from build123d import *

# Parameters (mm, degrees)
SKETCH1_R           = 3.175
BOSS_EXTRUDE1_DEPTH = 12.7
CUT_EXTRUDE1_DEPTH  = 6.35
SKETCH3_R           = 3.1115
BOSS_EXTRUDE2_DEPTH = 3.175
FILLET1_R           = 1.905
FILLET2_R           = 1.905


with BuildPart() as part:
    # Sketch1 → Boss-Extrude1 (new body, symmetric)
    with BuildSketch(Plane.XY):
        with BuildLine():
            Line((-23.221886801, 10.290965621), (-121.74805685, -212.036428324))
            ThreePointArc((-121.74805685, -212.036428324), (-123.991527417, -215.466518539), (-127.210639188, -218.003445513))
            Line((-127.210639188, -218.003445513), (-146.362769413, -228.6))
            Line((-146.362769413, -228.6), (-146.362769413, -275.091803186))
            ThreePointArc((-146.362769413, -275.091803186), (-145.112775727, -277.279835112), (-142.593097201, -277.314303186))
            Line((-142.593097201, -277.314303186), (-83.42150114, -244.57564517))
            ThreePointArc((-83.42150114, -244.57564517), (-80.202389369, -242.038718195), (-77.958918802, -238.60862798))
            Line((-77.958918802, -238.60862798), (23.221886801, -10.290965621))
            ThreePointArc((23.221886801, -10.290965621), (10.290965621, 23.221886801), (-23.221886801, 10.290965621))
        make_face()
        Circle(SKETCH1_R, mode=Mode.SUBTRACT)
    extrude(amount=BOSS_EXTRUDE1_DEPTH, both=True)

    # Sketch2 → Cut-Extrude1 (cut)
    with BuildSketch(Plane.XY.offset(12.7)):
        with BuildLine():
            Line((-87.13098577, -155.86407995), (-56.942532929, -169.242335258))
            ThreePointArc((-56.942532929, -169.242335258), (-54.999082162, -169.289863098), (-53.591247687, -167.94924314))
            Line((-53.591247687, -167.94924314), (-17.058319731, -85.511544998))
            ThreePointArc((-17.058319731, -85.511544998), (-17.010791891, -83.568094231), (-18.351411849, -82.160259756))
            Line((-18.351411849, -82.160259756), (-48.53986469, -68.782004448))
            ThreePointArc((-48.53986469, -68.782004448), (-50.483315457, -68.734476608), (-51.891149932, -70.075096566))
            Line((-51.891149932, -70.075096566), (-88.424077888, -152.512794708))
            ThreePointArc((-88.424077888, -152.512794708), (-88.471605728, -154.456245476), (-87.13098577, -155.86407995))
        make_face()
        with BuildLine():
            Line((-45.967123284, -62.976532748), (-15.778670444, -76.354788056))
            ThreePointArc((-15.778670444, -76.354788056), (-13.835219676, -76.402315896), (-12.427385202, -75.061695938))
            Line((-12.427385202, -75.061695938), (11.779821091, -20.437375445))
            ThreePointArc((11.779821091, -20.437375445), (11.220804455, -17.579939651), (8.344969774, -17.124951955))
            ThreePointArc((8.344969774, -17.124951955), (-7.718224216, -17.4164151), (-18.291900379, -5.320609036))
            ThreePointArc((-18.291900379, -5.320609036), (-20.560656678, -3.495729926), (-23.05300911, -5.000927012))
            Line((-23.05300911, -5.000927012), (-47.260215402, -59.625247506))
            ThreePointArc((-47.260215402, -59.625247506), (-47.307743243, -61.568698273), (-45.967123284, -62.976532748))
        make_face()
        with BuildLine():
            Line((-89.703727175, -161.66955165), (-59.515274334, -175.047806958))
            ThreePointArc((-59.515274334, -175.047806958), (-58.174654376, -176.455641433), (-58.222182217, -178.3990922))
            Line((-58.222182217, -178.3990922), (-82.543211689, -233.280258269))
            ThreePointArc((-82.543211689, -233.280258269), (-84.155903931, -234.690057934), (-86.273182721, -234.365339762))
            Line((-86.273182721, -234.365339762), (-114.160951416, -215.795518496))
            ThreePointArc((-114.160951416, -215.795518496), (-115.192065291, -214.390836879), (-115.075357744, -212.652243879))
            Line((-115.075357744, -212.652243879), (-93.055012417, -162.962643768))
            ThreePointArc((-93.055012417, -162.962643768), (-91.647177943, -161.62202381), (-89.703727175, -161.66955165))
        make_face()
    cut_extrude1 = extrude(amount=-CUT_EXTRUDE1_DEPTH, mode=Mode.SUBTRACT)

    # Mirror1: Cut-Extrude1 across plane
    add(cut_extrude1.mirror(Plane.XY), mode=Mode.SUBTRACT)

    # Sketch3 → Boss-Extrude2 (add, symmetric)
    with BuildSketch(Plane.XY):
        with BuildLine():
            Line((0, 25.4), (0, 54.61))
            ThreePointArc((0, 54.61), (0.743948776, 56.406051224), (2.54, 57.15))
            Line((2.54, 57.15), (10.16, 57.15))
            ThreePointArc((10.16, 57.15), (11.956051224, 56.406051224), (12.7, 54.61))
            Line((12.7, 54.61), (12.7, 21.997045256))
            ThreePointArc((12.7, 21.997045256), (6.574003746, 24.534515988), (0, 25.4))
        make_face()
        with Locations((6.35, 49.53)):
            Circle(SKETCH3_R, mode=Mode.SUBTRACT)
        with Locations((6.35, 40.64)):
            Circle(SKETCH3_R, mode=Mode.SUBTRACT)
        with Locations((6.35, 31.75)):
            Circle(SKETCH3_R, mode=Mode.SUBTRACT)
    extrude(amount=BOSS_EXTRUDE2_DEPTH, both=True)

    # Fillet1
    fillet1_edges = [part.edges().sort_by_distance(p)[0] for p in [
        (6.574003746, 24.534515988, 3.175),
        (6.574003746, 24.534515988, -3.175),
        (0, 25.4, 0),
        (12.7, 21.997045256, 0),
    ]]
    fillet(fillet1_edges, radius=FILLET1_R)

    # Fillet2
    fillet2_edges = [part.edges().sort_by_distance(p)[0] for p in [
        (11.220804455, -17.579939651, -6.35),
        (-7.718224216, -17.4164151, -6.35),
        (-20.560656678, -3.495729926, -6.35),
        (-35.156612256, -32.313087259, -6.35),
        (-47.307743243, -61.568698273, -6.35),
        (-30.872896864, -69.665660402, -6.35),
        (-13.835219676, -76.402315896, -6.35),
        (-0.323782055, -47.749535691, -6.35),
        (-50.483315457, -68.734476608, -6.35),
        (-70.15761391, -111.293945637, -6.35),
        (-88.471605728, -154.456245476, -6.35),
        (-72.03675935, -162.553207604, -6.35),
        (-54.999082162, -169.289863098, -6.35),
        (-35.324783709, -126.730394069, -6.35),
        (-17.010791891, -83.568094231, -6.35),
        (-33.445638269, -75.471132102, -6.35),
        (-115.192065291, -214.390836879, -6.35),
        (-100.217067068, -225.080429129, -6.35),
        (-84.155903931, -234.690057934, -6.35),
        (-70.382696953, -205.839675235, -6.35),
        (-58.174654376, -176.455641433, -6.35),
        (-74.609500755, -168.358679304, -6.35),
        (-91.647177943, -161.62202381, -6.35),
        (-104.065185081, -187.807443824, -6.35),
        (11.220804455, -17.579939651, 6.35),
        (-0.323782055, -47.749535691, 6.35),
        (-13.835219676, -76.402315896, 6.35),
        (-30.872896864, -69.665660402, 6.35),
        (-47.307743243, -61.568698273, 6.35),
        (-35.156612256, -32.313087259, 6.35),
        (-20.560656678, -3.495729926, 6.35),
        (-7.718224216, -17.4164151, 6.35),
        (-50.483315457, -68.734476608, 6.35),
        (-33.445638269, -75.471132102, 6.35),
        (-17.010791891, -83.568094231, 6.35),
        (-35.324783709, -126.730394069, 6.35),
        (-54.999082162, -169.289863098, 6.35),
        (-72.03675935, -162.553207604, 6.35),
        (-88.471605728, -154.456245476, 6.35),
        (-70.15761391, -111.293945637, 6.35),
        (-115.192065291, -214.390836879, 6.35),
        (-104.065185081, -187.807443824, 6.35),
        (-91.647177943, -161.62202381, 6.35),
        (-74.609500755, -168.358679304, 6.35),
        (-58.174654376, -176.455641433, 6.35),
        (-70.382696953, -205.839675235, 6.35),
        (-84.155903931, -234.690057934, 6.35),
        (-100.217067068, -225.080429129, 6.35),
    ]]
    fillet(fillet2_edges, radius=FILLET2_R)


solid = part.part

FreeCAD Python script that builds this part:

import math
import FreeCAD as App
import Part
import Sketcher
Q = App.Units.Quantity


def edges_at(feature, points):
    """Names of the edges that pass closest to the given points."""
    edges = feature.Shape.Edges
    near = lambda p: min(range(len(edges)), key=lambda i: edges[i].distToShape(Part.Vertex(*p))[0])
    return sorted({f"Edge{near(p) + 1}" for p in points})

doc = App.newDocument("Part")
body = doc.addObject("PartDesign::Body", "Body")

# Sketch on XY plane
sketch1 = body.newObject("Sketcher::SketchObject", "Sketch")
sketch1.AttachmentSupport = (doc.getObject("XY_Plane"), [""])
sketch1.MapMode = "FlatFace"
sketch1.addGeometry([
    Part.LineSegment(App.Vector(-23.2, 10.3, 0), App.Vector(-121.7, -212, 0)),  # 0
    Part.ArcOfCircle(Part.Circle(App.Vector(-133.4, -206.9, 0), App.Vector(0, 0, 1), 12.7), math.radians(-61), math.radians(-24)),  # 1
    Part.LineSegment(App.Vector(-127.2, -218, 0), App.Vector(-146.4, -228.6, 0)),  # 2
    Part.LineSegment(App.Vector(-146.4, -228.6, 0), App.Vector(-146.4, -275.1, 0)),  # 3
    Part.ArcOfCircle(Part.Circle(App.Vector(-143.8, -275.1, 0), App.Vector(0, 0, 1), 2.5), math.radians(180), math.radians(299)),  # 4
    Part.LineSegment(App.Vector(-142.6, -277.3, 0), App.Vector(-83.4, -244.6, 0)),  # 5
    Part.ArcOfCircle(Part.Circle(App.Vector(-89.6, -233.5, 0), App.Vector(0, 0, 1), 12.7), math.radians(-61), math.radians(-24)),  # 6
    Part.LineSegment(App.Vector(-78, -238.6, 0), App.Vector(23.2, -10.3, 0)),  # 7
    Part.ArcOfCircle(Part.Circle(App.Vector(0, 0, 0), App.Vector(0, 0, 1), 25.4), math.radians(-24), math.radians(156)),  # 8
    Part.Circle(App.Vector(0, 0, 0), App.Vector(0, 0, 1), 3.2),  # 9
], False)
sketch1.addConstraint([
    Sketcher.Constraint("Tangent", 0, 2, 1, 2),
    Sketcher.Constraint("Tangent", 1, 1, 2, 1),
    Sketcher.Constraint("Coincident", 2, 2, 3, 1),
    Sketcher.Constraint("Tangent", 3, 2, 4, 1),
    Sketcher.Constraint("Tangent", 4, 2, 5, 1),
    Sketcher.Constraint("Tangent", 5, 2, 6, 1),
    Sketcher.Constraint("Tangent", 6, 2, 7, 1),
    Sketcher.Constraint("Tangent", 7, 2, 8, 1),
    Sketcher.Constraint("Tangent", 8, 2, 0, 1),
    Sketcher.Constraint("Vertical", 3),
    Sketcher.Constraint("Coincident", 8, 3, -1, 1),
    Sketcher.Constraint("Coincident", 9, 3, -1, 1),
    Sketcher.Constraint("Equal", 1, 6),
    Sketcher.Constraint("Parallel", 2, 5),
    Sketcher.Constraint("Parallel", 0, 7),
    Sketcher.Constraint("Radius", 8, Q("1 in")),
    Sketcher.Constraint("Radius", 1, Q("0.5 in")),
    Sketcher.Constraint("Radius", 4, Q("0.1 in")),
    Sketcher.Constraint("Diameter", 9, Q("0.25 in")),
    Sketcher.Constraint("DistanceY", 2, 2, -1, 1, Q("9 in")),
    Sketcher.Constraint("DistanceY", 1, 1, 1, 3, Q("0.4375 in")),
    Sketcher.Constraint("DistanceX", 1, 3, -1, 1, 133.359),
    Sketcher.Constraint("DistanceX", 5, 2, -1, 1, 83.421501),
    Sketcher.Constraint("DistanceY", 6, 3, 1, 3, 26.5722),
])
pad1 = body.newObject("PartDesign::Pad", "Pad")
pad1.Profile = sketch1
pad1.Length = Q("1 in")
pad1.Midplane = True

# Sketch on XY plane
sketch2 = body.newObject("Sketcher::SketchObject", "Sketch001")
sketch2.AttachmentSupport = (doc.getObject("XY_Plane"), [""])
sketch2.MapMode = "FlatFace"
sketch2.AttachmentOffset = App.Placement(App.Vector(0, 0, 0.5 * 25.4), App.Rotation())
sketch2.addGeometry([
    Part.LineSegment(App.Vector(-87.1, -155.9, 0), App.Vector(-56.9, -169.2, 0)),  # 0
    Part.ArcOfCircle(Part.Circle(App.Vector(-55.9, -166.9, 0), App.Vector(0, 0, 1), 2.5), math.radians(-114), math.radians(-24)),  # 1
    Part.LineSegment(App.Vector(-53.6, -167.9, 0), App.Vector(-17.1, -85.5, 0)),  # 2
    Part.ArcOfCircle(Part.Circle(App.Vector(-19.4, -84.5, 0), App.Vector(0, 0, 1), 2.5), math.radians(-24), math.radians(66)),  # 3
    Part.LineSegment(App.Vector(-18.4, -82.2, 0), App.Vector(-48.5, -68.8, 0)),  # 4
    Part.ArcOfCircle(Part.Circle(App.Vector(-49.6, -71.1, 0), App.Vector(0, 0, 1), 2.5), math.radians(66), math.radians(156)),  # 5
    Part.LineSegment(App.Vector(-51.9, -70.1, 0), App.Vector(-88.4, -152.5, 0)),  # 6
    Part.ArcOfCircle(Part.Circle(App.Vector(-86.1, -153.5, 0), App.Vector(0, 0, 1), 2.5), math.radians(156), math.radians(246)),  # 7
    Part.LineSegment(App.Vector(-46, -63, 0), App.Vector(-15.8, -76.4, 0)),  # 8
    Part.ArcOfCircle(Part.Circle(App.Vector(-14.7, -74, 0), App.Vector(0, 0, 1), 2.5), math.radians(-114), math.radians(-24)),  # 9
    Part.LineSegment(App.Vector(-12.4, -75.1, 0), App.Vector(11.8, -20.4, 0)),  # 10
    Part.ArcOfCircle(Part.Circle(App.Vector(9.5, -19.4, 0), App.Vector(0, 0, 1), 2.5), math.radians(-24), math.radians(116)),  # 11
    Part.ArcOfCircle(Part.Circle(App.Vector(0, 0, 0), App.Vector(0, 0, 1), 19.1), math.radians(-164), math.radians(-64)),  # 12
    Part.ArcOfCircle(Part.Circle(App.Vector(-20.7, -6, 0), App.Vector(0, 0, 1), 2.5), math.radians(16), math.radians(156)),  # 13
    Part.LineSegment(App.Vector(-23.1, -5, 0), App.Vector(-47.3, -59.6, 0)),  # 14
    Part.ArcOfCircle(Part.Circle(App.Vector(-44.9, -60.7, 0), App.Vector(0, 0, 1), 2.5), math.radians(156), math.radians(246)),  # 15
    Part.LineSegment(App.Vector(-59.5, -175, 0), App.Vector(-89.7, -161.7, 0)),  # 16
    Part.ArcOfCircle(Part.Circle(App.Vector(-90.7, -164, 0), App.Vector(0, 0, 1), 2.5), math.radians(66), math.radians(156)),  # 17
    Part.LineSegment(App.Vector(-93.1, -163, 0), App.Vector(-115.1, -212.7, 0)),  # 18
    Part.ArcOfCircle(Part.Circle(App.Vector(-112.8, -213.7, 0), App.Vector(0, 0, 1), 2.5), math.radians(156), math.radians(236)),  # 19
    Part.LineSegment(App.Vector(-114.2, -215.8, 0), App.Vector(-86.3, -234.4, 0)),  # 20
    Part.ArcOfCircle(Part.Circle(App.Vector(-84.9, -232.3, 0), App.Vector(0, 0, 1), 2.5), math.radians(-124), math.radians(-24)),  # 21
    Part.LineSegment(App.Vector(-82.5, -233.3, 0), App.Vector(-58.2, -178.4, 0)),  # 22
    Part.ArcOfCircle(Part.Circle(App.Vector(-60.5, -177.4, 0), App.Vector(0, 0, 1), 2.5), math.radians(-24), math.radians(66)),  # 23
], False)
sketch2.addConstraint([
    Sketcher.Constraint("Tangent", 0, 2, 1, 1),
    Sketcher.Constraint("Tangent", 1, 2, 2, 1),
    Sketcher.Constraint("Tangent", 2, 2, 3, 1),
    Sketcher.Constraint("Tangent", 3, 2, 4, 1),
    Sketcher.Constraint("Tangent", 4, 2, 5, 1),
    Sketcher.Constraint("Tangent", 5, 2, 6, 1),
    Sketcher.Constraint("Tangent", 6, 2, 7, 1),
    Sketcher.Constraint("Tangent", 7, 2, 0, 1),
    Sketcher.Constraint("Tangent", 8, 2, 9, 1),
    Sketcher.Constraint("Tangent", 9, 2, 10, 1),
    Sketcher.Constraint("Tangent", 10, 2, 11, 1),
    Sketcher.Constraint("Tangent", 11, 2, 12, 2),
    Sketcher.Constraint("Tangent", 12, 1, 13, 1),
    Sketcher.Constraint("Tangent", 13, 2, 14, 1),
    Sketcher.Constraint("Tangent", 14, 2, 15, 1),
    Sketcher.Constraint("Tangent", 15, 2, 8, 1),
    Sketcher.Constraint("Tangent", 16, 2, 17, 1),
    Sketcher.Constraint("Tangent", 17, 2, 18, 1),
    Sketcher.Constraint("Tangent", 18, 2, 19, 1),
    Sketcher.Constraint("Tangent", 19, 2, 20, 1),
    Sketcher.Constraint("Tangent", 20, 2, 21, 1),
    Sketcher.Constraint("Tangent", 21, 2, 22, 1),
    Sketcher.Constraint("Tangent", 22, 2, 23, 1),
    Sketcher.Constraint("Tangent", 23, 2, 16, 1),
    Sketcher.Constraint("Coincident", 12, 3, -1, 1),
    Sketcher.Constraint("Equal", 1, 3),
    Sketcher.Constraint("Equal", 3, 5),
    Sketcher.Constraint("Equal", 5, 7),
    Sketcher.Constraint("Equal", 7, 9),
    Sketcher.Constraint("Equal", 9, 11),
    Sketcher.Constraint("Equal", 11, 13),
    Sketcher.Constraint("Equal", 13, 15),
    Sketcher.Constraint("Equal", 15, 17),
    Sketcher.Constraint("Equal", 17, 19),
    Sketcher.Constraint("Equal", 19, 21),
    Sketcher.Constraint("Equal", 21, 23),
    Sketcher.Constraint("Perpendicular", 0, 2),
    Sketcher.Constraint("Perpendicular", 2, 4),
    Sketcher.Constraint("Perpendicular", 4, 6),
    Sketcher.Constraint("Perpendicular", 6, 8),
    Sketcher.Constraint("Perpendicular", 8, 10),
    Sketcher.Constraint("Parallel", 10, 14),
    Sketcher.Constraint("Perpendicular", 14, 16),
    Sketcher.Constraint("Perpendicular", 16, 18),
    Sketcher.Constraint("Parallel", 18, 22),
    Sketcher.Constraint("Equal", 4, 8),
    Sketcher.Constraint("Equal", 10, 14),
    Sketcher.Constraint("Equal", 8, 16),
    Sketcher.Constraint("Radius", 1, Q("0.1 in")),
    Sketcher.Constraint("Radius", 12, Q("0.75 in")),
    Sketcher.Constraint("Distance", 0, Q("1.3 in")),
    Sketcher.Constraint("Distance", 2, Q("3.55 in")),
    Sketcher.Constraint("DistanceY", 9, 3, -1, 1, 74.032599),
    Sketcher.Constraint("DistanceX", 21, 3, -1, 1, 84.8654),
    Sketcher.Constraint("DistanceX", 12, 1, -1, 1, 18.2919),
    Sketcher.Constraint("DistanceY", 19, 3, 17, 3, 49.6896),
    Sketcher.Constraint("DistanceY", 2, 2, 15, 3, 24.857201),
    Sketcher.Constraint("DistanceY", 23, 3, 6, 2, 24.857201),
    Sketcher.Constraint("DistanceY", 20, 2, 19, 3, 20.683999),
    Sketcher.Constraint("DistanceX", 3, 3, -1, 1, 19.380508),
])
pocket1 = body.newObject("PartDesign::Pocket", "Pocket")
pocket1.Profile = sketch2
pocket1.Length = Q("0.25 in")
doc.recompute()

mirrored = body.newObject("PartDesign::Mirrored", "Mirrored")
mirrored.Originals = [pocket1]
mirrored.MirrorPlane = (doc.getObject("XY_Plane"), [""])
body.Tip = mirrored

# Sketch on XY plane
sketch3 = body.newObject("Sketcher::SketchObject", "Sketch002")
sketch3.AttachmentSupport = (doc.getObject("XY_Plane"), [""])
sketch3.MapMode = "FlatFace"
sketch3.addGeometry([
    Part.LineSegment(App.Vector(0, 54.6, 0), App.Vector(0, 25.4, 0)),  # 0
    Part.ArcOfCircle(Part.Circle(App.Vector(0, 0, 0), App.Vector(0, 0, 1), 25.4), math.radians(60), math.radians(90)),  # 1
    Part.LineSegment(App.Vector(12.7, 22, 0), App.Vector(12.7, 54.6, 0)),  # 2
    Part.ArcOfCircle(Part.Circle(App.Vector(10.2, 54.6, 0), App.Vector(0, 0, 1), 2.5), math.radians(0), math.radians(90)),  # 3
    Part.LineSegment(App.Vector(10.2, 57.1, 0), App.Vector(2.5, 57.1, 0)),  # 4
    Part.ArcOfCircle(Part.Circle(App.Vector(2.5, 54.6, 0), App.Vector(0, 0, 1), 2.5), math.radians(90), math.radians(180)),  # 5
    Part.Circle(App.Vector(6.3, 31.8, 0), App.Vector(0, 0, 1), 3.1),  # 6
    Part.Circle(App.Vector(6.3, 40.6, 0), App.Vector(0, 0, 1), 3.1),  # 7
    Part.Circle(App.Vector(6.3, 49.5, 0), App.Vector(0, 0, 1), 3.1),  # 8
], False)
sketch3.addConstraint([
    Sketcher.Constraint("Coincident", 0, 2, 1, 2),
    Sketcher.Constraint("Coincident", 1, 1, 2, 1),
    Sketcher.Constraint("Tangent", 2, 2, 3, 1),
    Sketcher.Constraint("Tangent", 3, 2, 4, 1),
    Sketcher.Constraint("Tangent", 4, 2, 5, 1),
    Sketcher.Constraint("Tangent", 5, 2, 0, 1),
    Sketcher.Constraint("Vertical", 0),
    Sketcher.Constraint("Vertical", 2),
    Sketcher.Constraint("Horizontal", 4),
    Sketcher.Constraint("Coincident", 1, 3, -1, 1),
    Sketcher.Constraint("Equal", 3, 5),
    Sketcher.Constraint("Equal", 6, 7),
    Sketcher.Constraint("Equal", 7, 8),
    Sketcher.Constraint("PointOnObject", 0, 2, -2),
    Sketcher.Constraint("Vertical", 6, 3, 7, 3),
    Sketcher.Constraint("Vertical", 7, 3, 8, 3),
    Sketcher.Constraint("Radius", 1, Q("1 in")),
    Sketcher.Constraint("Radius", 3, Q("0.1 in")),
    Sketcher.Constraint("Diameter", 6, Q("0.245 in")),
    Sketcher.Constraint("DistanceX", 4, 2, 4, 1, Q("0.3 in")),
    Sketcher.Constraint("DistanceY", 0, 2, 0, 1, Q("1.15 in")),
    Sketcher.Constraint("DistanceY", -1, 1, 7, 3, Q("1.6 in")),
    Sketcher.Constraint("DistanceY", 6, 3, 3, 3, Q("0.9 in")),
    Sketcher.Constraint("DistanceY", 8, 3, 3, 3, Q("0.2 in")),
    Sketcher.Constraint("DistanceX", -1, 1, 6, 3, Q("0.25 in")),
])
pad2 = body.newObject("PartDesign::Pad", "Pad001")
pad2.Profile = sketch3
pad2.Length = Q("0.25 in")
pad2.Midplane = True
doc.recompute()

fillet = body.newObject("PartDesign::Fillet", "Fillet")
fillet.Base = (pad2, edges_at(pad2, [
    (6.574, 24.535, 3.175),
    (6.574, 24.535, -3.175),
    (0, 25.4, 0),
    (12.7, 21.997, 0),
]))
fillet.Radius = Q("0.075 in")
doc.recompute()

fillet2 = body.newObject("PartDesign::Fillet", "Fillet001")
fillet2.Base = (fillet, edges_at(fillet, [
    (11.221, -17.58, -6.35),
    (-7.718, -17.416, -6.35),
    (-20.561, -3.496, -6.35),
    (-35.157, -32.313, -6.35),
    (-47.308, -61.569, -6.35),
    (-30.873, -69.666, -6.35),
    (-13.835, -76.402, -6.35),
    (-0.324, -47.75, -6.35),
    (-50.483, -68.734, -6.35),
    (-70.158, -111.294, -6.35),
    (-88.472, -154.456, -6.35),
    (-72.037, -162.553, -6.35),
    (-54.999, -169.29, -6.35),
    (-35.325, -126.73, -6.35),
    (-17.011, -83.568, -6.35),
    (-33.446, -75.471, -6.35),
    (-115.192, -214.391, -6.35),
    (-100.217, -225.08, -6.35),
    (-84.156, -234.69, -6.35),
    (-70.383, -205.84, -6.35),
    (-58.175, -176.456, -6.35),
    (-74.61, -168.359, -6.35),
    (-91.647, -161.622, -6.35),
    (-104.065, -187.807, -6.35),
    (11.221, -17.58, 6.35),
    (-0.324, -47.75, 6.35),
    (-13.835, -76.402, 6.35),
    (-30.873, -69.666, 6.35),
    (-47.308, -61.569, 6.35),
    (-35.157, -32.313, 6.35),
    (-20.561, -3.496, 6.35),
    (-7.718, -17.416, 6.35),
    (-50.483, -68.734, 6.35),
    (-33.446, -75.471, 6.35),
    (-17.011, -83.568, 6.35),
    (-35.325, -126.73, 6.35),
    (-54.999, -169.29, 6.35),
    (-72.037, -162.553, 6.35),
    (-88.472, -154.456, 6.35),
    (-70.158, -111.294, 6.35),
    (-115.192, -214.391, 6.35),
    (-104.065, -187.807, 6.35),
    (-91.647, -161.622, 6.35),
    (-74.61, -168.359, 6.35),
    (-58.175, -176.456, 6.35),
    (-70.383, -205.84, 6.35),
    (-84.156, -234.69, 6.35),
    (-100.217, -225.08, 6.35),
]))
fillet2.Radius = Q("0.075 in")

doc.recompute()
